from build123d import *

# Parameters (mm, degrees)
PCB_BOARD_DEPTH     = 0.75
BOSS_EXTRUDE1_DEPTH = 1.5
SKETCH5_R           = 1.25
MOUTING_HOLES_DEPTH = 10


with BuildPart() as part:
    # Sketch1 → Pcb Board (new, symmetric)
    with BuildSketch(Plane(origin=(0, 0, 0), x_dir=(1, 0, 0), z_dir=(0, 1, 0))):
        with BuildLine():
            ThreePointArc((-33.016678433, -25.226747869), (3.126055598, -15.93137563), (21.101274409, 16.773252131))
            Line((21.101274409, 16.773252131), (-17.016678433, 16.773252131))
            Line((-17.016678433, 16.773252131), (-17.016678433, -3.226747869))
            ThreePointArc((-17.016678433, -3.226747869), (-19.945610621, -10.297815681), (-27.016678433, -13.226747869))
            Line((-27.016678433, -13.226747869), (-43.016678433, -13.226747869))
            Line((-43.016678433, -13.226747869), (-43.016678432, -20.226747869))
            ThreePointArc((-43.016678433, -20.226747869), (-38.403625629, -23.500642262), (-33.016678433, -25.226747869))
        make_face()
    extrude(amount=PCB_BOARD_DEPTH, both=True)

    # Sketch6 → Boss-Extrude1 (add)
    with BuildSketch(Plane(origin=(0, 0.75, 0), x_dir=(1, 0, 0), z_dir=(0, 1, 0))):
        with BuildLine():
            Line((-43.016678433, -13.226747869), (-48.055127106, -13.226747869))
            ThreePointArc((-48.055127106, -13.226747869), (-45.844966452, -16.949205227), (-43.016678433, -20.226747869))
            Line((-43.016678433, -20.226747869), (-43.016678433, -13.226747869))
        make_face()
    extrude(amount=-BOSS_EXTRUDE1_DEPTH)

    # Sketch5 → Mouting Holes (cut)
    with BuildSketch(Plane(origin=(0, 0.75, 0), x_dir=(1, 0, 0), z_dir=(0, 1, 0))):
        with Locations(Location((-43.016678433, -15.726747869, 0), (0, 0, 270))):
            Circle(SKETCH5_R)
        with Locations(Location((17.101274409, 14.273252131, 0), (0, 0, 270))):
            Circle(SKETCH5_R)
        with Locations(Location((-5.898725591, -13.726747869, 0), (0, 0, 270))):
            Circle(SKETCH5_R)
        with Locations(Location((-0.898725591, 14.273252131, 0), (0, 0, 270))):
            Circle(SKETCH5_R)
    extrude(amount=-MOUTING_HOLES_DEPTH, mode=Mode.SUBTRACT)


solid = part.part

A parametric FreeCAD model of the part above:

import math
import FreeCAD as App
import Part
import Sketcher

V = App.Vector
Q = App.Units.Quantity

doc = App.newDocument("Part")
body = doc.addObject("PartDesign::Body", "Body")

sketch1 = doc.addObject("Sketcher::SketchObject", "Sketch")
body.addObject(sketch1)
sketch1.AttachmentSupport = (doc.XZ_Plane, [""])
sketch1.MapMode = "FlatFace"
sketch1.addGeometry([
    Part.ArcOfCircle(Part.Circle(V(-26, -21, 0), V(0, 0, 1), 47), math.radians(5), math.radians(99)),
    Part.LineSegment(V(21, -17, 0), V(-17, -17, 0)),
    Part.LineSegment(V(-17, -17, 0), V(-17, 3, 0)),
    Part.ArcOfCircle(Part.Circle(V(-27, 3, 0), V(0, 0, 1), 10), math.radians(0), math.radians(90)),
    Part.LineSegment(V(-27, 13, 0), V(-43, 13, 0)),
    Part.LineSegment(V(-43, 13, 0), V(-43, 20, 0)),
    Part.ArcOfCircle(Part.Circle(V(-30, 7, 0), V(0, 0, 1), 18), math.radians(99), math.radians(134)),
], False)
sketch1.addConstraint([
    Sketcher.Constraint("Coincident", 0, 1, 1, 1),
    Sketcher.Constraint("Coincident", 1, 2, 2, 1),
    Sketcher.Constraint("Tangent", 2, 2, 3, 1),
    Sketcher.Constraint("Tangent", 3, 2, 4, 1),
    Sketcher.Constraint("Coincident", 4, 2, 5, 1),
    Sketcher.Constraint("Coincident", 5, 2, 6, 2),
    Sketcher.Constraint("Tangent", 6, 1, 0, 2),
    Sketcher.Constraint("Horizontal", 1),
    Sketcher.Constraint("Vertical", 2),
    Sketcher.Constraint("Horizontal", 4),
    Sketcher.Constraint("Vertical", 5),
    Sketcher.Constraint("Radius", 0, Q("47 mm")),
    Sketcher.Constraint("Radius", 3, Q("10 mm")),
    Sketcher.Constraint("DistanceX", 4, 2, 4, 1, Q("16 mm")),
    Sketcher.Constraint("DistanceY", 2, 1, 2, 2, Q("20 mm")),
    Sketcher.Constraint("DistanceY", 5, 1, 5, 2, Q("7 mm")),
    Sketcher.Constraint("DistanceX", 5, 2, 6, 1, Q("10 mm")),
    Sketcher.Constraint("DistanceY", 5, 2, 6, 1, Q("5 mm")),
    Sketcher.Constraint("Radius", 6, Q("18.491189 mm")),
    Sketcher.Constraint("DistanceX", 0, 3, -1, 1, Q("25.689919 mm")),
    Sketcher.Constraint("DistanceY", 0, 3, -1, 1, Q("21.198661 mm")),
])
pad1 = doc.addObject("PartDesign::Pad", "Pad")
body.addObject(pad1)
pad1.Profile = sketch1
pad1.Length = 1.5
pad1.Midplane = True

sketch2 = doc.addObject("Sketcher::SketchObject", "Sketch001")
body.addObject(sketch2)
sketch2.AttachmentSupport = (doc.XZ_Plane, [""])
sketch2.MapMode = "FlatFace"
sketch2.AttachmentOffset = App.Placement(V(0, 0, -0.75), App.Rotation())
sketch2.addGeometry([
    Part.LineSegment(V(-43, 13, 0), V(-48, 13, 0)),
    Part.ArcOfCircle(Part.Circle(V(-26, 3, 0), V(0, 0, 1), 25), math.radians(134), math.radians(154)),
    Part.LineSegment(V(-43, 20, 0), V(-43, 13, 0)),
], False)
sketch2.addConstraint([
    Sketcher.Constraint("Coincident", 0, 2, 1, 2),
    Sketcher.Constraint("Coincident", 1, 1, 2, 1),
    Sketcher.Constraint("Coincident", 2, 2, 0, 1),
    Sketcher.Constraint("Horizontal", 0),
    Sketcher.Constraint("Vertical", 2),
    Sketcher.Constraint("DistanceY", 2, 2, 2, 1, Q("7 mm")),
    Sketcher.Constraint("Radius", 1, Q("24.608146 mm")),
    Sketcher.Constraint("DistanceX", 0, 2, 0, 1, Q("5.038449 mm")),
    Sketcher.Constraint("DistanceX", 1, 1, -1, 1, Q("43.016678 mm")),
    Sketcher.Constraint("DistanceY", -1, 1, 1, 3, Q("2.573465 mm")),
])
pad2 = doc.addObject("PartDesign::Pad", "Pad001")
body.addObject(pad2)
pad2.Profile = sketch2
pad2.Length = 1.5

sketch3 = doc.addObject("Sketcher::SketchObject", "Sketch002")
body.addObject(sketch3)
sketch3.AttachmentSupport = (doc.XZ_Plane, [""])
sketch3.MapMode = "FlatFace"
sketch3.AttachmentOffset = App.Placement(V(0, 0, -0.75), App.Rotation())
sketch3.addGeometry([
    Part.Circle(V(-43, 15.7, 0), V(0, 0, 1), 1.2),
    Part.Circle(V(17.1, -14.3, 0), V(0, 0, 1), 1.2),
    Part.Circle(V(-5.9, 13.7, 0), V(0, 0, 1), 1.2),
    Part.Circle(V(-0.9, -14.3, 0), V(0, 0, 1), 1.2),
], False)
sketch3.addConstraint([
    Sketcher.Constraint("Equal", 0, 1),
    Sketcher.Constraint("Equal", 1, 2),
    Sketcher.Constraint("Equal", 2, 3),
    Sketcher.Constraint("Horizontal", 1, 3, 3, 3),
    Sketcher.Constraint("Diameter", 0, Q("2.5 mm")),
    Sketcher.Constraint("DistanceY", 1, 3, 0, 3, Q("30 mm")),
    Sketcher.Constraint("DistanceX", 2, 3, 1, 3, Q("23 mm")),
    Sketcher.Constraint("DistanceY", 1, 3, 2, 3, Q("28 mm")),
    Sketcher.Constraint("DistanceX", 3, 3, 1, 3, Q("18 mm")),
    Sketcher.Constraint("DistanceX", 0, 3, -1, 1, Q("43.016678 mm")),
    Sketcher.Constraint("DistanceY", -1, 1, 0, 3, Q("15.726748 mm")),
    Sketcher.Constraint("DistanceX", -1, 1, 1, 3, Q("17.101274 mm")),
])
pocket1 = doc.addObject("PartDesign::Pocket", "Pocket")
body.addObject(pocket1)
pocket1.Profile = sketch3
pocket1.Length = 10
pocket1.Reversed = True

doc.recompute()
